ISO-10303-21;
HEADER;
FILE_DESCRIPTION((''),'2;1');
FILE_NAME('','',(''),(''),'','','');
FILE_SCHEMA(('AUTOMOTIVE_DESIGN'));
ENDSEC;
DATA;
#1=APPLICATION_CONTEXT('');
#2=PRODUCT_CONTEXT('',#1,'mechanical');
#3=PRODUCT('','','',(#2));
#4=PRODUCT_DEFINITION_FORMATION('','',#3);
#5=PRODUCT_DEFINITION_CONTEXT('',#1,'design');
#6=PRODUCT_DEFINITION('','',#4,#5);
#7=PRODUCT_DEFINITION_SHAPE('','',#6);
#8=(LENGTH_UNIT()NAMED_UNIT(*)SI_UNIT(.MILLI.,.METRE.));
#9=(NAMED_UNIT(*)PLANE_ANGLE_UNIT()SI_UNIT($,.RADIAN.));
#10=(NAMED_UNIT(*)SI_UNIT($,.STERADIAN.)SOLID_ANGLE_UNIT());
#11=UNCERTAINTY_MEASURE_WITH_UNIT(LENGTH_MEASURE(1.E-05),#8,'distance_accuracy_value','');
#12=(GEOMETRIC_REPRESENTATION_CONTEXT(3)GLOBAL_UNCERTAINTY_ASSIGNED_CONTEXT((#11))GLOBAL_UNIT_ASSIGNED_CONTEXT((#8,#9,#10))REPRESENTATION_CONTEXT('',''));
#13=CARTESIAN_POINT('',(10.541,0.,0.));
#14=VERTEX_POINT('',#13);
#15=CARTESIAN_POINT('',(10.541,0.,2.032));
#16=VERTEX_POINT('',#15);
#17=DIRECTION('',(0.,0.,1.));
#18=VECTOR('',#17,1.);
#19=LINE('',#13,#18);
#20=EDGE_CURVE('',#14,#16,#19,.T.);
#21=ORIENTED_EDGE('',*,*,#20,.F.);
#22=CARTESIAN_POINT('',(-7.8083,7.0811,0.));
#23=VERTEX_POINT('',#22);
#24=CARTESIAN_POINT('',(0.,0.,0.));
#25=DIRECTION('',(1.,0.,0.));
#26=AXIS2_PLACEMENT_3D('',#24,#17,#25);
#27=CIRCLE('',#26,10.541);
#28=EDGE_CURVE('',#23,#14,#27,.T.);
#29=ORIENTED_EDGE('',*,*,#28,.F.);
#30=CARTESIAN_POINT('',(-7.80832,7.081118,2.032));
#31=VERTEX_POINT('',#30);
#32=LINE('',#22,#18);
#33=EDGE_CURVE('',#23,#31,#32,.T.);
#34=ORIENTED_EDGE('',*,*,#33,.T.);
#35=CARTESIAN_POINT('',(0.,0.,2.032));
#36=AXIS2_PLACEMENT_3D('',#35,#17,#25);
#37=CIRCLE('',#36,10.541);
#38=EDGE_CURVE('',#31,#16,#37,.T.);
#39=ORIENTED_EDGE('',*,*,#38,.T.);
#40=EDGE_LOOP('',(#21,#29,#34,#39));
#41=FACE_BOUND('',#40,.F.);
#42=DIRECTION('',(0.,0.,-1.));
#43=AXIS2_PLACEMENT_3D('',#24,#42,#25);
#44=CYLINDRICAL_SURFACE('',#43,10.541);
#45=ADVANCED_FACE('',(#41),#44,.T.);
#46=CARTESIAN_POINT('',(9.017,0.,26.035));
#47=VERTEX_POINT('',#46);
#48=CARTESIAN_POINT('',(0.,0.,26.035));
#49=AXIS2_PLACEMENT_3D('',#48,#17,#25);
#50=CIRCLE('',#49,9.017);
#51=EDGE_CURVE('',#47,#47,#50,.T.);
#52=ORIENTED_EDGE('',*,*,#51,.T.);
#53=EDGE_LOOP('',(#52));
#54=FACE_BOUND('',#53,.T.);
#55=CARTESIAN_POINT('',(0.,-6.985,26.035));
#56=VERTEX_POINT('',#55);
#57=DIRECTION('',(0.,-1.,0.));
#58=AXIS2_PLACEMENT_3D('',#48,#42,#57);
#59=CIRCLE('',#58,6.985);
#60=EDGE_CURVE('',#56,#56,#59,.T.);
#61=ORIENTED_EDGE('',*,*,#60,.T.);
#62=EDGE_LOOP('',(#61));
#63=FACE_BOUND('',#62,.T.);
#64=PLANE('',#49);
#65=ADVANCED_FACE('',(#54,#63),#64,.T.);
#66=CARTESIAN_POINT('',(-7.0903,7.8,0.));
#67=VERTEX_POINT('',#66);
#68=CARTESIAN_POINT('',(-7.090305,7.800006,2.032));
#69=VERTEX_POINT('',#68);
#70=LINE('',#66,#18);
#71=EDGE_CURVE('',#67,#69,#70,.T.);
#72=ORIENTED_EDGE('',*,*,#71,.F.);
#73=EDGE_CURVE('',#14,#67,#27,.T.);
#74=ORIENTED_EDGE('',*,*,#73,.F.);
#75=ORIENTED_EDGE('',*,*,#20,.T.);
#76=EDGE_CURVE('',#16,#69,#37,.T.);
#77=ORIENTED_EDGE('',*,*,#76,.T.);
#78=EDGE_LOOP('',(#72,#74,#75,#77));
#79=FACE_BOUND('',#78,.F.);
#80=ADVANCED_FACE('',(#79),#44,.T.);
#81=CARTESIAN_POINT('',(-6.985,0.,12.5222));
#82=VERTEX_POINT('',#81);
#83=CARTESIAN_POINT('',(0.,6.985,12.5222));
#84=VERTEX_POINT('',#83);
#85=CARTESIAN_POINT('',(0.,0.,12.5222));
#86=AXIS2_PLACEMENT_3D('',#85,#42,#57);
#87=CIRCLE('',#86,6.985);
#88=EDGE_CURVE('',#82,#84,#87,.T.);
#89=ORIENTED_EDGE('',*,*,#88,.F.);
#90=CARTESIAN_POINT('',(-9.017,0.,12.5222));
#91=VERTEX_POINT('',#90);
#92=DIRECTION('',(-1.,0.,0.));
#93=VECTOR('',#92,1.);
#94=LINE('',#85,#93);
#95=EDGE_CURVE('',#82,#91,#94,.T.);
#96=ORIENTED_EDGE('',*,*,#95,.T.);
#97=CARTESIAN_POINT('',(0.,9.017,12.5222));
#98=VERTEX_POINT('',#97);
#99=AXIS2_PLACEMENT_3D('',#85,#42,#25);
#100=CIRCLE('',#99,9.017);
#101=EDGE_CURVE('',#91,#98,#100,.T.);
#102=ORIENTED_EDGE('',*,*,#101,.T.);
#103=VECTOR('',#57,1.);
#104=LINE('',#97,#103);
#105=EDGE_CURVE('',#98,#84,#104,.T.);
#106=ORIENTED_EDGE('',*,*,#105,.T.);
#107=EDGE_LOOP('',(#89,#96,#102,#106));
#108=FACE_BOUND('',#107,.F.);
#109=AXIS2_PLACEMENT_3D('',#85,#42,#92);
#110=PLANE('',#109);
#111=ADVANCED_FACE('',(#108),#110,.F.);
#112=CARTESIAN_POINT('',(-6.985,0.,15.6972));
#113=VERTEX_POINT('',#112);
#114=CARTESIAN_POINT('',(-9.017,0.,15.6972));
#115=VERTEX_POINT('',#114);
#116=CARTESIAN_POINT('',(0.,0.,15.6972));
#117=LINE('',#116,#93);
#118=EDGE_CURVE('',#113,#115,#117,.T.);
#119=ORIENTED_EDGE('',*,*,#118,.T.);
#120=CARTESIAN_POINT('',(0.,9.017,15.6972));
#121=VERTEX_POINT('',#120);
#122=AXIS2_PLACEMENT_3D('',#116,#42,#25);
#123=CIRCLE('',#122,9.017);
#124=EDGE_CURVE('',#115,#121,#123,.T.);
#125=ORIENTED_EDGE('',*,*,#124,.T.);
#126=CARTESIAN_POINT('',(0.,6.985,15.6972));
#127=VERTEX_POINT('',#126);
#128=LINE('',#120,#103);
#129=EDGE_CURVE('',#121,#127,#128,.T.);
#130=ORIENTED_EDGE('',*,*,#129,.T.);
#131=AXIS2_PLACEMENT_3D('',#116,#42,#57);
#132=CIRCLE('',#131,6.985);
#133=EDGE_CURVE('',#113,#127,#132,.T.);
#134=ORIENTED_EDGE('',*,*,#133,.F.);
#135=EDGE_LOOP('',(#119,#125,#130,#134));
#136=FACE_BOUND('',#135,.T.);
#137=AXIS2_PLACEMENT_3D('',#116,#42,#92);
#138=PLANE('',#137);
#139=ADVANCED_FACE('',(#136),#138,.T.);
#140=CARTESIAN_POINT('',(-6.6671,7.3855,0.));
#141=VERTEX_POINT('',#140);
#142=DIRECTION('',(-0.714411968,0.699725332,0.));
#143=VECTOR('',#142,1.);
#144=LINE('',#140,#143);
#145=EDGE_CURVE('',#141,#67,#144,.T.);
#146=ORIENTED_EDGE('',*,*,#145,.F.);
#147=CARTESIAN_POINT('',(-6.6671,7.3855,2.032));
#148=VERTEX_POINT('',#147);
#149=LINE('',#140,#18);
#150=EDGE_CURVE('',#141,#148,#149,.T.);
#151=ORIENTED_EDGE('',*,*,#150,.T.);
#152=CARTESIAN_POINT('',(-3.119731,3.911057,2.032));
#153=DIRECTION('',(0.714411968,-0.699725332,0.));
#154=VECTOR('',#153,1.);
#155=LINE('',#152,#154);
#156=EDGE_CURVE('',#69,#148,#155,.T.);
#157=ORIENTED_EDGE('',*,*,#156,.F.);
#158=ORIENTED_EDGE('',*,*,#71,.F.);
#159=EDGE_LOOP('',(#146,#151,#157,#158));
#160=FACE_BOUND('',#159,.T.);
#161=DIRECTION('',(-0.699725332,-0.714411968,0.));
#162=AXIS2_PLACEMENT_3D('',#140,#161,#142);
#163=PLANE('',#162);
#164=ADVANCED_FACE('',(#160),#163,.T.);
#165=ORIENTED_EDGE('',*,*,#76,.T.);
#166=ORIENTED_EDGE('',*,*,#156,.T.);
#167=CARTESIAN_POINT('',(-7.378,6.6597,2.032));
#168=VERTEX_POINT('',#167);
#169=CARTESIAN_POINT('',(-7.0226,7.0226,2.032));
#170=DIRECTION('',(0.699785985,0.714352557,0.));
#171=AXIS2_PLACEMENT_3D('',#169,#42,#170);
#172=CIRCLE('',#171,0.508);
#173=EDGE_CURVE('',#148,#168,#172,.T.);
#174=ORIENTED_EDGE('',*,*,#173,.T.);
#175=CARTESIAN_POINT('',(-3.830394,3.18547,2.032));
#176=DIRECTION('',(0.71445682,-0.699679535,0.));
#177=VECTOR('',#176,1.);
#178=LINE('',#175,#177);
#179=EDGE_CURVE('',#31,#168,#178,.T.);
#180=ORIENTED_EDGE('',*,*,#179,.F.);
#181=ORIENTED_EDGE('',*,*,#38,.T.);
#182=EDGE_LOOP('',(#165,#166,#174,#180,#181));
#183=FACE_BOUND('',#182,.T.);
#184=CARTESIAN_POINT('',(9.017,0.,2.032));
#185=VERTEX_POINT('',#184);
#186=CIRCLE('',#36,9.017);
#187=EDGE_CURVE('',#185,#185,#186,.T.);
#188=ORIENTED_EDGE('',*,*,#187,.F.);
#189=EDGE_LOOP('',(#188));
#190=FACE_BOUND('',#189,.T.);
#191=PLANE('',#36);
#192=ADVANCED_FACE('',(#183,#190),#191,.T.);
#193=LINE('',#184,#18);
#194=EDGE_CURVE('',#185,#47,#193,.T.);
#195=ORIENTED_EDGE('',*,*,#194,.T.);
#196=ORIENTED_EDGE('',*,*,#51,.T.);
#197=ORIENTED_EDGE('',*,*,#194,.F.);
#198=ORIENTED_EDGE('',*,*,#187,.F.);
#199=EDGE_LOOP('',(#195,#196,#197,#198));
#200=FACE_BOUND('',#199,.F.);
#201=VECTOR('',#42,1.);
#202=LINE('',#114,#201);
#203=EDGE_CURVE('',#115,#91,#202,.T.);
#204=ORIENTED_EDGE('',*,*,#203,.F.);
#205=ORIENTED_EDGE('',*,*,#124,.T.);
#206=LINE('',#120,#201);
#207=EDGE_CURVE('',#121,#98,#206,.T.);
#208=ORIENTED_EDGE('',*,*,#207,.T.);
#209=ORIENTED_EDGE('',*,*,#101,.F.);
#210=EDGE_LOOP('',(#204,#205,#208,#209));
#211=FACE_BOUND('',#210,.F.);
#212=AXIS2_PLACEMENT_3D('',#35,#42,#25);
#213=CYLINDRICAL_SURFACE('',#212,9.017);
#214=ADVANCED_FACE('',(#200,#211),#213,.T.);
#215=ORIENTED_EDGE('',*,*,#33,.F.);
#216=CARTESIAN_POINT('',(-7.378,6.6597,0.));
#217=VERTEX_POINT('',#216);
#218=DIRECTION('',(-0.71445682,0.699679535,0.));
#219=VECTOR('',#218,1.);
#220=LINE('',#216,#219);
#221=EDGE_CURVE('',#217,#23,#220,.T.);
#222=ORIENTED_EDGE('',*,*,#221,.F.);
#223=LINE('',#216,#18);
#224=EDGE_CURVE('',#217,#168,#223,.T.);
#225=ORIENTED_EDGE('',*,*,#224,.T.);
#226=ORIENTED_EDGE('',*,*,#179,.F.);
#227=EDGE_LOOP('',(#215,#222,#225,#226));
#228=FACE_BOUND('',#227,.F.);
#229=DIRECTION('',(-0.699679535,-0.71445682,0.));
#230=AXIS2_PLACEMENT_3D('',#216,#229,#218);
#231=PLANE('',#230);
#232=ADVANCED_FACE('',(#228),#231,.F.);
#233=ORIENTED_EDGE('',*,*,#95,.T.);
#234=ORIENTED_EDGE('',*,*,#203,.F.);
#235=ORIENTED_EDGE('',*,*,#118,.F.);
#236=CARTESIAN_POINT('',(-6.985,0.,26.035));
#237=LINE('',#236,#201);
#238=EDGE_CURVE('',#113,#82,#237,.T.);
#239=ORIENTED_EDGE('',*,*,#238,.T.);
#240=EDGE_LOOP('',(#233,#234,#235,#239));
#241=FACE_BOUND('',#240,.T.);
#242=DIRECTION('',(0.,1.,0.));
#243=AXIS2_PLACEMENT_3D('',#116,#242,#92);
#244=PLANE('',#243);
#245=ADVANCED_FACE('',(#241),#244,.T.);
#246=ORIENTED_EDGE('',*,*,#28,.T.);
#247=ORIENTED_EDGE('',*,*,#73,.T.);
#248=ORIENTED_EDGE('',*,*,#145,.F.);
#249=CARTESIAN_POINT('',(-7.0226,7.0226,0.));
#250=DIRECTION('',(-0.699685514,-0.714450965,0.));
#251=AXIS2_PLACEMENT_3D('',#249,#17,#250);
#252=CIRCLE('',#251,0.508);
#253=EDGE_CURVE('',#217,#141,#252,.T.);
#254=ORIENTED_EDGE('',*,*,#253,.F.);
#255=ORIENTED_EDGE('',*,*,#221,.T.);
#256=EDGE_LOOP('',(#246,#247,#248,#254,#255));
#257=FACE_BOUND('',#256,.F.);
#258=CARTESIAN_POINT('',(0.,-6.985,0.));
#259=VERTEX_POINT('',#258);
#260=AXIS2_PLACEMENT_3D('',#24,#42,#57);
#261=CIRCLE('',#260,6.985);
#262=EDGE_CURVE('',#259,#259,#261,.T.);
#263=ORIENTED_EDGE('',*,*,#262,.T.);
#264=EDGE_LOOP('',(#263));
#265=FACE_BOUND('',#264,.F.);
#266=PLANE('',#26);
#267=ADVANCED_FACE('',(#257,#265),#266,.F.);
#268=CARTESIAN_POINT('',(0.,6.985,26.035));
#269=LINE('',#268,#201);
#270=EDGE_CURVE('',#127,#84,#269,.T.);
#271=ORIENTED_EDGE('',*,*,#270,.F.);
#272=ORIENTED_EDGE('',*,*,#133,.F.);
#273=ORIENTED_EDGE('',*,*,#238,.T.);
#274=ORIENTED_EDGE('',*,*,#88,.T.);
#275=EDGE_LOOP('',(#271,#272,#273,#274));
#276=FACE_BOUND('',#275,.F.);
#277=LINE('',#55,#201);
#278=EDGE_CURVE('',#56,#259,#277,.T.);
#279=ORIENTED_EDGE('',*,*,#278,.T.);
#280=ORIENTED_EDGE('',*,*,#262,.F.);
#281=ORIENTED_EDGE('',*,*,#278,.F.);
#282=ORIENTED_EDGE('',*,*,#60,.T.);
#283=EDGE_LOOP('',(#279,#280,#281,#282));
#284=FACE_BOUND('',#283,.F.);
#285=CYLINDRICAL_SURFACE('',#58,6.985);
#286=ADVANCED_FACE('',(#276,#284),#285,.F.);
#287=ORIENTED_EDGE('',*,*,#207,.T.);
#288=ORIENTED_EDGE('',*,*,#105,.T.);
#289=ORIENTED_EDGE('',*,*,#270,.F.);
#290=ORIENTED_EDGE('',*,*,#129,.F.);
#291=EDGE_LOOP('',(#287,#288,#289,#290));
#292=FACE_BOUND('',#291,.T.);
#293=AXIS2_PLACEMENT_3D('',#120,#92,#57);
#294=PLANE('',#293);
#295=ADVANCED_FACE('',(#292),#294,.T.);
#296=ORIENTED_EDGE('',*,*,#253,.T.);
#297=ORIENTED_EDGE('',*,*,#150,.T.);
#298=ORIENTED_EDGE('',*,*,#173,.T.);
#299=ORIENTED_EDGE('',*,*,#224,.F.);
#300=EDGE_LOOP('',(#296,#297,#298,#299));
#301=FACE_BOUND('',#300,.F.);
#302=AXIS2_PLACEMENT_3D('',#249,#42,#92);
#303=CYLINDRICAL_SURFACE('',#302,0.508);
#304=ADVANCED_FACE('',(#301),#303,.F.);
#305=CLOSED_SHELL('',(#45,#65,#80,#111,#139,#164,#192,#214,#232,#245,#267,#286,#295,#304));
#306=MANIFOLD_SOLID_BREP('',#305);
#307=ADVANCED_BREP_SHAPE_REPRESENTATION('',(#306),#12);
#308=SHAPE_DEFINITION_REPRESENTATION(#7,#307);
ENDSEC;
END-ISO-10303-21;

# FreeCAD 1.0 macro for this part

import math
import FreeCAD as App
import Part
import Sketcher

V = App.Vector
Q = App.Units.Quantity

doc = App.newDocument("Part")
body = doc.addObject("PartDesign::Body", "Body")

# Sketch on XY plane
sketch1 = body.newObject("Sketcher::SketchObject", "Sketch")
sketch1.AttachmentSupport = (doc.getObject("XY_Plane"), [""])
sketch1.MapMode = "FlatFace"
sketch1.addGeometry(Part.Circle(V(0, 0, 0), V(0, 0, 1), 11), False)
sketch1.addConstraint([
    Sketcher.Constraint("Coincident", 0, 3, -1, 1),
    Sketcher.Constraint("Diameter", 0, Q("0.83 in")),
])
pad1 = body.newObject("PartDesign::Pad", "Pad")
pad1.Profile = sketch1
pad1.Length = Q("0.08 in")

# Sketch on XY plane
sketch2 = body.newObject("Sketcher::SketchObject", "Sketch001")
sketch2.AttachmentSupport = (doc.getObject("XY_Plane"), [""])
sketch2.MapMode = "FlatFace"
sketch2.AttachmentOffset = App.Placement(V(0, 0, 0.08 * 25.4), App.Rotation())
sketch2.addGeometry(Part.Circle(V(0, 0, 0), V(0, 0, 1), 9), False)
sketch2.addConstraint([
    Sketcher.Constraint("Coincident", 0, 3, -1, 1),
    Sketcher.Constraint("Diameter", 0, Q("0.71 in")),
])
pad2 = body.newObject("PartDesign::Pad", "Pad001")
pad2.Profile = sketch2
pad2.Length = Q("0.945 in")

# Sketch on XY plane
sketch3 = body.newObject("Sketcher::SketchObject", "Sketch002")
sketch3.AttachmentSupport = (doc.getObject("XY_Plane"), [""])
sketch3.MapMode = "FlatFace"
sketch3.AttachmentOffset = App.Placement(V(0, 0, 0.618 * 25.4), App.Rotation())
sketch3.addGeometry([
    Part.LineSegment(V(0, 9, 0), V(0, 0, 0)),
    Part.LineSegment(V(0, 0, 0), V(-9, 0, 0)),
    Part.LineSegment(V(-9, 0, 0), V(-9, 9, 0)),
    Part.LineSegment(V(-9, 9, 0), V(0, 9, 0)),
], False)
sketch3.addConstraint([
    Sketcher.Constraint("Coincident", 0, 2, 1, 1),
    Sketcher.Constraint("Coincident", 1, 2, 2, 1),
    Sketcher.Constraint("Coincident", 2, 2, 3, 1),
    Sketcher.Constraint("Coincident", 3, 2, 0, 1),
    Sketcher.Constraint("Vertical", 0),
    Sketcher.Constraint("Horizontal", 1),
    Sketcher.Constraint("Vertical", 2),
    Sketcher.Constraint("Horizontal", 3),
    Sketcher.Constraint("Coincident", 0, 2, -1, 1),
    Sketcher.Constraint("Equal", 3, 0),
    Sketcher.Constraint("DistanceX", 1, 2, 1, 1, Q("0.355 in")),
])
pocket1 = body.newObject("PartDesign::Pocket", "Pocket")
pocket1.Profile = sketch3
pocket1.Length = Q("0.125 in")

# Sketch on XY plane
sketch4 = body.newObject("Sketcher::SketchObject", "Sketch003")
sketch4.AttachmentSupport = (doc.getObject("XY_Plane"), [""])
sketch4.MapMode = "FlatFace"
sketch4.AttachmentOffset = App.Placement(V(0, 0, 1.025 * 25.4), App.Rotation())
sketch4.addGeometry(Part.Circle(V(0, 0, 0), V(0, 0, 1), 7), False)
sketch4.addConstraint([
    Sketcher.Constraint("Coincident", 0, 3, -1, 1),
    Sketcher.Constraint("Diameter", 0, Q("0.55 in")),
])
doc.recompute()
hole = body.newObject("PartDesign::Hole", "Hole")
hole.Profile = sketch4
hole.ThreadType = "None"
hole.Diameter = Q("0.55 in")
hole.DepthType = "ThroughAll"

# Sketch on XY plane
sketch5 = body.newObject("Sketcher::SketchObject", "Sketch004")
sketch5.AttachmentSupport = (doc.getObject("XY_Plane"), [""])
sketch5.MapMode = "FlatFace"
sketch5.addGeometry([
    Part.ArcOfCircle(Part.Circle(V(0, 0, 0), V(0, 0, 1), 10.5), math.radians(132.27), math.radians(137.8)),
    Part.LineSegment(V(-7.1, 7.8, 0), V(-6.7, 7.4, 0)),
    Part.ArcOfCircle(Part.Circle(V(-7, 7, 0), V(0, 0, 1), 0.5), math.radians(-134), math.radians(46)),
    Part.LineSegment(V(-7.4, 6.7, 0), V(-7.8, 7.1, 0)),
], False)
sketch5.addConstraint([
    Sketcher.Constraint("Coincident", 0, 1, 1, 1),
    Sketcher.Constraint("Tangent", 1, 2, 2, 2),
    Sketcher.Constraint("Tangent", 2, 1, 3, 1),
    Sketcher.Constraint("Coincident", 3, 2, 0, 2),
    Sketcher.Constraint("Coincident", 0, 3, -1, 1),
    Sketcher.Constraint("Parallel", 1, 3),
    Sketcher.Constraint("Radius", 2, Q("0.02 in")),
    Sketcher.Constraint("Radius", 0, Q("0.415 in")),
    Sketcher.Constraint("DistanceX", 2, 3, 1, 2, Q("0.014 in")),
    Sketcher.Constraint("Distance", 3, Q("0.0237 in")),
    Sketcher.Constraint("DistanceY", -1, 1, 2, 1, Q("0.2622 in")),
])
pocket2 = body.newObject("PartDesign::Pocket", "Pocket001")
pocket2.Profile = sketch5
pocket2.Type = "ThroughAll"
pocket2.Reversed = True

doc.recompute()
